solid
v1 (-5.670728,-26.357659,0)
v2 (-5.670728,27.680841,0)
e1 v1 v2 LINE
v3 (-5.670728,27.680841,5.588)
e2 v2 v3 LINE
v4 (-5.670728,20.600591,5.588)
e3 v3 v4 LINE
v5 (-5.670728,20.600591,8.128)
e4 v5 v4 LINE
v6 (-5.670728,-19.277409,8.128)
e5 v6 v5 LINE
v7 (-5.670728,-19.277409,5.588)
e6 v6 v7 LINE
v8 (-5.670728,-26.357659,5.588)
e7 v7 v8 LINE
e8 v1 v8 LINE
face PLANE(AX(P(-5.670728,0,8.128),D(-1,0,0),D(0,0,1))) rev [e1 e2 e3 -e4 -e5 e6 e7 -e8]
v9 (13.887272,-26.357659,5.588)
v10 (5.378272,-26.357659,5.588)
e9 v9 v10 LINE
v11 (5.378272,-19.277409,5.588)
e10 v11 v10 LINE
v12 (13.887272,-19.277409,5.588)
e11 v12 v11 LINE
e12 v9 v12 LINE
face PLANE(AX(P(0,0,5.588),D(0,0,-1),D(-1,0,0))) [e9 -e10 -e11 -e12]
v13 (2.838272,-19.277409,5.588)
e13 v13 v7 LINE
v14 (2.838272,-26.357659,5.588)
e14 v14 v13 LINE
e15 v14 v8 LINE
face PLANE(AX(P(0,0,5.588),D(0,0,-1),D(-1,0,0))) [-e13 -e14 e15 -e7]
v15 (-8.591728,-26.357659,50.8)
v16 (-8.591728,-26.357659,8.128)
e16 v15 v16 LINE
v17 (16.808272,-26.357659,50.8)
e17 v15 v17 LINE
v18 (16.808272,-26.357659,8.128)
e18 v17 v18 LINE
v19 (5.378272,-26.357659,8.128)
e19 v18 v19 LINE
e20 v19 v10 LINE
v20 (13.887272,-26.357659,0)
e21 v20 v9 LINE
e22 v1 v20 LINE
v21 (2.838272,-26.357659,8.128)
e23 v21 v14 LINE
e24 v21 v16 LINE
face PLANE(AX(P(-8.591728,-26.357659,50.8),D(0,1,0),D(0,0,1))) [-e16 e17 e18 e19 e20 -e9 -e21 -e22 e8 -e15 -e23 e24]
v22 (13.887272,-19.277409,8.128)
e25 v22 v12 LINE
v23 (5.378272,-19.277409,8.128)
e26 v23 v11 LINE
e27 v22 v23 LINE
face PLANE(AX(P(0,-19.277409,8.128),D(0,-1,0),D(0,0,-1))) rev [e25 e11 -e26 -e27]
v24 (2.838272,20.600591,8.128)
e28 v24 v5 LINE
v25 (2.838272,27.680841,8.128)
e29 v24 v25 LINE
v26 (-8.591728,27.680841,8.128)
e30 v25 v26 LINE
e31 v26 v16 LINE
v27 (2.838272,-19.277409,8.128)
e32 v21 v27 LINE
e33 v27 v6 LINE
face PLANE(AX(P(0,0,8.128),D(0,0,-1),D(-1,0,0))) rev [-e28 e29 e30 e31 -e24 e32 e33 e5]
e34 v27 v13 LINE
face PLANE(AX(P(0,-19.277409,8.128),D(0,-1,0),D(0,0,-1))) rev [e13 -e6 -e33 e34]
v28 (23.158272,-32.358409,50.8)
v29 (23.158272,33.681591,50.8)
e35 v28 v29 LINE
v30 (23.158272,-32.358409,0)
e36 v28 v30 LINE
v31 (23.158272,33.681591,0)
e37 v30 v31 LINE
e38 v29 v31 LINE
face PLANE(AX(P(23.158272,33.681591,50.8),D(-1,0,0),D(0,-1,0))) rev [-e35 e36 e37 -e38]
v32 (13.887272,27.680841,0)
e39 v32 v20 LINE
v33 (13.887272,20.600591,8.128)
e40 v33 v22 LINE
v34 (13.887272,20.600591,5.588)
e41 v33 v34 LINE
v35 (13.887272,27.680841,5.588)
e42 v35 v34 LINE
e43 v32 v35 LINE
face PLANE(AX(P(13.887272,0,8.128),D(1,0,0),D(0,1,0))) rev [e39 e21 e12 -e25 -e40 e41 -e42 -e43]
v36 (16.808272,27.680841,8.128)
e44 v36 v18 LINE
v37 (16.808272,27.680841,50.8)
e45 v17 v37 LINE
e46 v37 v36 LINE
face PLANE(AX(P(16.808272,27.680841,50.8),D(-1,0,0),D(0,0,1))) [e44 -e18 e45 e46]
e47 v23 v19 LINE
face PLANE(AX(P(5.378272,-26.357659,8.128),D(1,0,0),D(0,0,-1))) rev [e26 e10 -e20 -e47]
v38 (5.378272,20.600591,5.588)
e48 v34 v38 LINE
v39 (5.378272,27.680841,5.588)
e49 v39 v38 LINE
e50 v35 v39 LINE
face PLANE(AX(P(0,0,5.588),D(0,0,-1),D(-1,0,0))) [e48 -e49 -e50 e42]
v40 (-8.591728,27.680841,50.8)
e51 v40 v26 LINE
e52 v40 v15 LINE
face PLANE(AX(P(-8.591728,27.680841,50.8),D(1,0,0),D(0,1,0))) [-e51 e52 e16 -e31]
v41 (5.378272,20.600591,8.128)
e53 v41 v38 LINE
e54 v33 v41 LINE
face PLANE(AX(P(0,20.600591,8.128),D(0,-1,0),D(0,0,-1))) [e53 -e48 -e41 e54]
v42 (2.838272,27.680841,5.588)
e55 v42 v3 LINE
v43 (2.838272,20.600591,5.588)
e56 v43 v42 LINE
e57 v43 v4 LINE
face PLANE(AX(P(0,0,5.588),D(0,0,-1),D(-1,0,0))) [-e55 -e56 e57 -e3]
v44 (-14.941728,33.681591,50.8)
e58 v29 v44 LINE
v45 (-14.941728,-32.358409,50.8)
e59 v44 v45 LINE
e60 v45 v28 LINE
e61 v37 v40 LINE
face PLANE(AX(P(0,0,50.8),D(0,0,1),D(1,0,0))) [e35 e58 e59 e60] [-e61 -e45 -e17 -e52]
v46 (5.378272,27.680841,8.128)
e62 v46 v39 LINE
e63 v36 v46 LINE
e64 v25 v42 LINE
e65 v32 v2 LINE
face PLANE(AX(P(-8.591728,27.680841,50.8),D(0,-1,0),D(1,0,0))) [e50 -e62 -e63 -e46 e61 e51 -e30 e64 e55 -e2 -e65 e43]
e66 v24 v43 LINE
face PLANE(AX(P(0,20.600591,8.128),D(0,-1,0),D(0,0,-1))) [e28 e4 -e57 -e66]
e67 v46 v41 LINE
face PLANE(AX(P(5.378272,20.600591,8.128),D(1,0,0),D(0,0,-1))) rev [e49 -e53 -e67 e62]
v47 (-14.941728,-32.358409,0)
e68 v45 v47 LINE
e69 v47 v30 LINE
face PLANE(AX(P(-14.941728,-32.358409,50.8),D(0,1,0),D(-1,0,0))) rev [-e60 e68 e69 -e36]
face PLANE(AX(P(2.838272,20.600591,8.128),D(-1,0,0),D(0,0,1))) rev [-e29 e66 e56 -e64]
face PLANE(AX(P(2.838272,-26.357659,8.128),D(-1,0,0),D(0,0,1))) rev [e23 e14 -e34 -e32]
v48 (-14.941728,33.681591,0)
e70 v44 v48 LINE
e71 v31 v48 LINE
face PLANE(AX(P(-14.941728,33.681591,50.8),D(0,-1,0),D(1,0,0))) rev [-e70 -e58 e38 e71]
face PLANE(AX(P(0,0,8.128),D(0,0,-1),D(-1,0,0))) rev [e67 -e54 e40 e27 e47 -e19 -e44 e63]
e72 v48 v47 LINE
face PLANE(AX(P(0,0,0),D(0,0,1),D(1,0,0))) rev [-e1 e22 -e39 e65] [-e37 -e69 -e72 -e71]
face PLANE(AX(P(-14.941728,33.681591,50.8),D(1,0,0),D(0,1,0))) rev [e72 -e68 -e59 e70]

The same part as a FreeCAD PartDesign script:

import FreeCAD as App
import Part
import Sketcher
from FreeCAD import Vector
Q = App.Units.Quantity

doc = App.newDocument("Part")
body = doc.addObject("PartDesign::Body", "Body")

sketch1 = body.newObject("Sketcher::SketchObject", "Sketch")
sketch1.AttachmentSupport = (doc.getObject("XY_Plane"), [""])
sketch1.MapMode = "FlatFace"
sketch1.addGeometry(Part.LineSegment(Vector(-15, 34, 0), Vector(-15, -32, 0)), False)
sketch1.addGeometry(Part.LineSegment(Vector(-15, -32, 0), Vector(23, -32, 0)), False)
sketch1.addGeometry(Part.LineSegment(Vector(23, -32, 0), Vector(23, 34, 0)), False)
sketch1.addGeometry(Part.LineSegment(Vector(23, 34, 0), Vector(-15, 34, 0)), False)
sketch1.addGeometry(Part.LineSegment(Vector(17, -26, 0), Vector(-9, -26, 0)), False)
sketch1.addGeometry(Part.LineSegment(Vector(-9, -26, 0), Vector(-9, 28, 0)), False)
sketch1.addGeometry(Part.LineSegment(Vector(-9, 28, 0), Vector(17, 28, 0)), False)
sketch1.addGeometry(Part.LineSegment(Vector(17, 28, 0), Vector(17, -26, 0)), False)
sketch1.addConstraint(Sketcher.Constraint("Coincident", 0, 2, 1, 1))
sketch1.addConstraint(Sketcher.Constraint("Coincident", 1, 2, 2, 1))
sketch1.addConstraint(Sketcher.Constraint("Coincident", 2, 2, 3, 1))
sketch1.addConstraint(Sketcher.Constraint("Coincident", 3, 2, 0, 1))
sketch1.addConstraint(Sketcher.Constraint("Coincident", 4, 2, 5, 1))
sketch1.addConstraint(Sketcher.Constraint("Coincident", 5, 2, 6, 1))
sketch1.addConstraint(Sketcher.Constraint("Coincident", 6, 2, 7, 1))
sketch1.addConstraint(Sketcher.Constraint("Coincident", 7, 2, 4, 1))
sketch1.addConstraint(Sketcher.Constraint("Vertical", 0))
sketch1.addConstraint(Sketcher.Constraint("Horizontal", 1))
sketch1.addConstraint(Sketcher.Constraint("Vertical", 2))
sketch1.addConstraint(Sketcher.Constraint("Horizontal", 3))
sketch1.addConstraint(Sketcher.Constraint("Horizontal", 4))
sketch1.addConstraint(Sketcher.Constraint("Vertical", 5))
sketch1.addConstraint(Sketcher.Constraint("Horizontal", 6))
sketch1.addConstraint(Sketcher.Constraint("Vertical", 7))
sketch1.addConstraint(Sketcher.Constraint("DistanceX", 4, 2, 4, 1, Q("1 in")))
sketch1.addConstraint(Sketcher.Constraint("DistanceX", 1, 1, 1, 2, Q("1.5 in")))
sketch1.addConstraint(Sketcher.Constraint("DistanceY", 0, 2, 0, 1, Q("2.6 in")))
sketch1.addConstraint(Sketcher.Constraint("DistanceX", 0, 2, 4, 2, Q("0.25 in")))
sketch1.addConstraint(Sketcher.Constraint("DistanceY", 5, 1, 5, 2, Q("2.1275 in")))
sketch1.addConstraint(Sketcher.Constraint("DistanceX", 0, 2, -1, 1, 14.941728))
sketch1.addConstraint(Sketcher.Constraint("DistanceY", 0, 2, -1, 1, 32.358409))
sketch1.addConstraint(Sketcher.Constraint("DistanceY", 4, 2, -1, 1, 26.357659))
pad1 = body.newObject("PartDesign::Pad", "Pad")
pad1.Profile = sketch1
pad1.Length = Q("2 in")

sketch2 = body.newObject("Sketcher::SketchObject", "Sketch001")
sketch2.AttachmentSupport = (doc.getObject("XY_Plane"), [""])
sketch2.MapMode = "FlatFace"
sketch2.AttachmentOffset = App.Placement(Vector(0, 0, 0.22 * 25.4), App.Rotation())
sketch2.addGeometry(Part.LineSegment(Vector(17, 28, 0), Vector(17, -26, 0)), False)
sketch2.addGeometry(Part.LineSegment(Vector(17, -26, 0), Vector(-9, -26, 0)), False)
sketch2.addGeometry(Part.LineSegment(Vector(-9, -26, 0), Vector(-9, 28, 0)), False)
sketch2.addGeometry(Part.LineSegment(Vector(-9, 28, 0), Vector(17, 28, 0)), False)
sketch2.addGeometry(Part.LineSegment(Vector(-6, -19, 0), Vector(14, -19, 0)), False)
sketch2.addGeometry(Part.LineSegment(Vector(14, -19, 0), Vector(14, 21, 0)), False)
sketch2.addGeometry(Part.LineSegment(Vector(14, 21, 0), Vector(-6, 21, 0)), False)
sketch2.addGeometry(Part.LineSegment(Vector(-6, 21, 0), Vector(-6, -19, 0)), False)
sketch2.addConstraint(Sketcher.Constraint("Coincident", 0, 2, 1, 1))
sketch2.addConstraint(Sketcher.Constraint("Coincident", 1, 2, 2, 1))
sketch2.addConstraint(Sketcher.Constraint("Coincident", 2, 2, 3, 1))
sketch2.addConstraint(Sketcher.Constraint("Coincident", 3, 2, 0, 1))
sketch2.addConstraint(Sketcher.Constraint("Coincident", 4, 2, 5, 1))
sketch2.addConstraint(Sketcher.Constraint("Coincident", 5, 2, 6, 1))
sketch2.addConstraint(Sketcher.Constraint("Coincident", 6, 2, 7, 1))
sketch2.addConstraint(Sketcher.Constraint("Coincident", 7, 2, 4, 1))
sketch2.addConstraint(Sketcher.Constraint("Vertical", 0))
sketch2.addConstraint(Sketcher.Constraint("Horizontal", 1))
sketch2.addConstraint(Sketcher.Constraint("Vertical", 2))
sketch2.addConstraint(Sketcher.Constraint("Horizontal", 3))
sketch2.addConstraint(Sketcher.Constraint("Horizontal", 4))
sketch2.addConstraint(Sketcher.Constraint("Vertical", 5))
sketch2.addConstraint(Sketcher.Constraint("Horizontal", 6))
sketch2.addConstraint(Sketcher.Constraint("Vertical", 7))
sketch2.addConstraint(Sketcher.Constraint("DistanceX", 1, 2, 1, 1, Q("1 in")))
sketch2.addConstraint(Sketcher.Constraint("DistanceX", 4, 1, 4, 2, Q("0.77 in")))
sketch2.addConstraint(Sketcher.Constraint("DistanceY", 5, 1, 5, 2, Q("1.57 in")))
sketch2.addConstraint(Sketcher.Constraint("DistanceY", 0, 2, 0, 1, Q("2.1275 in")))
sketch2.addConstraint(Sketcher.Constraint("DistanceX", 4, 2, 0, 2, Q("0.115 in")))
sketch2.addConstraint(Sketcher.Constraint("DistanceX", -1, 1, 0, 2, 16.808272))
sketch2.addConstraint(Sketcher.Constraint("DistanceY", 0, 2, -1, 1, 26.357659))
sketch2.addConstraint(Sketcher.Constraint("DistanceY", 4, 2, -1, 1, 19.277409))
pad2 = body.newObject("PartDesign::Pad", "Pad001")
pad2.Profile = sketch2
pad2.Length = Q("0.1 in")

sketch3 = body.newObject("Sketcher::SketchObject", "Sketch002")
sketch3.AttachmentSupport = (doc.getObject("XY_Plane"), [""])
sketch3.MapMode = "FlatFace"
sketch3.AttachmentOffset = App.Placement(Vector(0, 0, 0.22 * 25.4), App.Rotation())
sketch3.addGeometry(Part.LineSegment(Vector(16.8, 27.7, 0), Vector(16.8, -26.4, 0)), False)
sketch3.addGeometry(Part.LineSegment(Vector(16.8, -26.4, 0), Vector(13.9, -26.4, 0)), False)
sketch3.addGeometry(Part.LineSegment(Vector(13.9, -26.4, 0), Vector(13.9, 27.7, 0)), False)
sketch3.addGeometry(Part.LineSegment(Vector(13.9, 27.7, 0), Vector(16.8, 27.7, 0)), False)
sketch3.addGeometry(Part.LineSegment(Vector(-5.7, 27.7, 0), Vector(-5.7, -26.4, 0)), False)
sketch3.addGeometry(Part.LineSegment(Vector(-5.7, -26.4, 0), Vector(-8.6, -26.4, 0)), False)
sketch3.addGeometry(Part.LineSegment(Vector(-8.6, -26.4, 0), Vector(-8.6, 27.7, 0)), False)
sketch3.addGeometry(Part.LineSegment(Vector(-8.6, 27.7, 0), Vector(-5.7, 27.7, 0)), False)
sketch3.addConstraint(Sketcher.Constraint("Coincident", 0, 2, 1, 1))
sketch3.addConstraint(Sketcher.Constraint("Coincident", 1, 2, 2, 1))
sketch3.addConstraint(Sketcher.Constraint("Coincident", 2, 2, 3, 1))
sketch3.addConstraint(Sketcher.Constraint("Coincident", 3, 2, 0, 1))
sketch3.addConstraint(Sketcher.Constraint("Coincident", 4, 2, 5, 1))
sketch3.addConstraint(Sketcher.Constraint("Coincident", 5, 2, 6, 1))
sketch3.addConstraint(Sketcher.Constraint("Coincident", 6, 2, 7, 1))
sketch3.addConstraint(Sketcher.Constraint("Coincident", 7, 2, 4, 1))
sketch3.addConstraint(Sketcher.Constraint("Vertical", 0))
sketch3.addConstraint(Sketcher.Constraint("Horizontal", 1))
sketch3.addConstraint(Sketcher.Constraint("Vertical", 2))
sketch3.addConstraint(Sketcher.Constraint("Horizontal", 3))
sketch3.addConstraint(Sketcher.Constraint("Vertical", 4))
sketch3.addConstraint(Sketcher.Constraint("Horizontal", 5))
sketch3.addConstraint(Sketcher.Constraint("Vertical", 6))
sketch3.addConstraint(Sketcher.Constraint("Horizontal", 7))
sketch3.addConstraint(Sketcher.Constraint("Horizontal", 1, 2, 4, 2))
sketch3.addConstraint(Sketcher.Constraint("Horizontal", 3, 2, 6, 2))
sketch3.addConstraint(Sketcher.Constraint("Equal", 3, 5))
sketch3.addConstraint(Sketcher.Constraint("DistanceX", 5, 2, 0, 2, Q("1 in")))
sketch3.addConstraint(Sketcher.Constraint("DistanceX", 1, 2, 1, 1, Q("0.115 in")))
sketch3.addConstraint(Sketcher.Constraint("DistanceY", 0, 2, 0, 1, Q("2.1275 in")))
sketch3.addConstraint(Sketcher.Constraint("DistanceX", -1, 1, 0, 2, 16.808272))
sketch3.addConstraint(Sketcher.Constraint("DistanceY", 0, 2, -1, 1, 26.357659))
pad3 = body.newObject("PartDesign::Pad", "Pad002")
pad3.Profile = sketch3
pad3.Length = Q("0.22 in")
pad3.Reversed = True

sketch4 = body.newObject("Sketcher::SketchObject", "Sketch003")
sketch4.AttachmentSupport = (doc.getObject("XY_Plane"), [""])
sketch4.MapMode = "FlatFace"
sketch4.AttachmentOffset = App.Placement(Vector(0, 0, 0.22 * 25.4), App.Rotation())
sketch4.addGeometry(Part.LineSegment(Vector(5.4, 27.7, 0), Vector(5.4, 20.6, 0)), False)
sketch4.addGeometry(Part.LineSegment(Vector(5.4, 20.6, 0), Vector(2.8, 20.6, 0)), False)
sketch4.addGeometry(Part.LineSegment(Vector(2.8, 20.6, 0), Vector(2.8, 27.7, 0)), False)
sketch4.addGeometry(Part.LineSegment(Vector(2.8, 27.7, 0), Vector(5.4, 27.7, 0)), False)
sketch4.addGeometry(Part.LineSegment(Vector(5.4, -19.3, 0), Vector(5.4, -26.4, 0)), False)
sketch4.addGeometry(Part.LineSegment(Vector(5.4, -26.4, 0), Vector(2.8, -26.4, 0)), False)
sketch4.addGeometry(Part.LineSegment(Vector(2.8, -26.4, 0), Vector(2.8, -19.3, 0)), False)
sketch4.addGeometry(Part.LineSegment(Vector(2.8, -19.3, 0), Vector(5.4, -19.3, 0)), False)
sketch4.addConstraint(Sketcher.Constraint("Coincident", 0, 2, 1, 1))
sketch4.addConstraint(Sketcher.Constraint("Coincident", 1, 2, 2, 1))
sketch4.addConstraint(Sketcher.Constraint("Coincident", 2, 2, 3, 1))
sketch4.addConstraint(Sketcher.Constraint("Coincident", 3, 2, 0, 1))
sketch4.addConstraint(Sketcher.Constraint("Coincident", 4, 2, 5, 1))
sketch4.addConstraint(Sketcher.Constraint("Coincident", 5, 2, 6, 1))
sketch4.addConstraint(Sketcher.Constraint("Coincident", 6, 2, 7, 1))
sketch4.addConstraint(Sketcher.Constraint("Coincident", 7, 2, 4, 1))
sketch4.addConstraint(Sketcher.Constraint("Vertical", 0))
sketch4.addConstraint(Sketcher.Constraint("Horizontal", 1))
sketch4.addConstraint(Sketcher.Constraint("Vertical", 2))
sketch4.addConstraint(Sketcher.Constraint("Horizontal", 3))
sketch4.addConstraint(Sketcher.Constraint("Vertical", 4))
sketch4.addConstraint(Sketcher.Constraint("Horizontal", 5))
sketch4.addConstraint(Sketcher.Constraint("Vertical", 6))
sketch4.addConstraint(Sketcher.Constraint("Horizontal", 7))
sketch4.addConstraint(Sketcher.Constraint("Vertical", 3, 2, 4, 2))
sketch4.addConstraint(Sketcher.Constraint("Vertical", 2, 2, 5, 2))
sketch4.addConstraint(Sketcher.Constraint("Equal", 2, 4))
sketch4.addConstraint(Sketcher.Constraint("DistanceX", 1, 2, 1, 1, Q("0.1 in")))
sketch4.addConstraint(Sketcher.Constraint("DistanceY", 6, 2, 1, 2, Q("1.57 in")))
sketch4.addConstraint(Sketcher.Constraint("DistanceY", 4, 2, 3, 2, Q("2.1275 in")))
sketch4.addConstraint(Sketcher.Constraint("DistanceX", -1, 1, 0, 2, 5.378272))
sketch4.addConstraint(Sketcher.Constraint("DistanceY", -1, 1, 0, 2, 20.600591))
pocket1 = body.newObject("PartDesign::Pocket", "Pocket")
pocket1.Profile = sketch4
pocket1.Length = Q("0.1 in")
pocket1.Reversed = True

doc.recompute()
